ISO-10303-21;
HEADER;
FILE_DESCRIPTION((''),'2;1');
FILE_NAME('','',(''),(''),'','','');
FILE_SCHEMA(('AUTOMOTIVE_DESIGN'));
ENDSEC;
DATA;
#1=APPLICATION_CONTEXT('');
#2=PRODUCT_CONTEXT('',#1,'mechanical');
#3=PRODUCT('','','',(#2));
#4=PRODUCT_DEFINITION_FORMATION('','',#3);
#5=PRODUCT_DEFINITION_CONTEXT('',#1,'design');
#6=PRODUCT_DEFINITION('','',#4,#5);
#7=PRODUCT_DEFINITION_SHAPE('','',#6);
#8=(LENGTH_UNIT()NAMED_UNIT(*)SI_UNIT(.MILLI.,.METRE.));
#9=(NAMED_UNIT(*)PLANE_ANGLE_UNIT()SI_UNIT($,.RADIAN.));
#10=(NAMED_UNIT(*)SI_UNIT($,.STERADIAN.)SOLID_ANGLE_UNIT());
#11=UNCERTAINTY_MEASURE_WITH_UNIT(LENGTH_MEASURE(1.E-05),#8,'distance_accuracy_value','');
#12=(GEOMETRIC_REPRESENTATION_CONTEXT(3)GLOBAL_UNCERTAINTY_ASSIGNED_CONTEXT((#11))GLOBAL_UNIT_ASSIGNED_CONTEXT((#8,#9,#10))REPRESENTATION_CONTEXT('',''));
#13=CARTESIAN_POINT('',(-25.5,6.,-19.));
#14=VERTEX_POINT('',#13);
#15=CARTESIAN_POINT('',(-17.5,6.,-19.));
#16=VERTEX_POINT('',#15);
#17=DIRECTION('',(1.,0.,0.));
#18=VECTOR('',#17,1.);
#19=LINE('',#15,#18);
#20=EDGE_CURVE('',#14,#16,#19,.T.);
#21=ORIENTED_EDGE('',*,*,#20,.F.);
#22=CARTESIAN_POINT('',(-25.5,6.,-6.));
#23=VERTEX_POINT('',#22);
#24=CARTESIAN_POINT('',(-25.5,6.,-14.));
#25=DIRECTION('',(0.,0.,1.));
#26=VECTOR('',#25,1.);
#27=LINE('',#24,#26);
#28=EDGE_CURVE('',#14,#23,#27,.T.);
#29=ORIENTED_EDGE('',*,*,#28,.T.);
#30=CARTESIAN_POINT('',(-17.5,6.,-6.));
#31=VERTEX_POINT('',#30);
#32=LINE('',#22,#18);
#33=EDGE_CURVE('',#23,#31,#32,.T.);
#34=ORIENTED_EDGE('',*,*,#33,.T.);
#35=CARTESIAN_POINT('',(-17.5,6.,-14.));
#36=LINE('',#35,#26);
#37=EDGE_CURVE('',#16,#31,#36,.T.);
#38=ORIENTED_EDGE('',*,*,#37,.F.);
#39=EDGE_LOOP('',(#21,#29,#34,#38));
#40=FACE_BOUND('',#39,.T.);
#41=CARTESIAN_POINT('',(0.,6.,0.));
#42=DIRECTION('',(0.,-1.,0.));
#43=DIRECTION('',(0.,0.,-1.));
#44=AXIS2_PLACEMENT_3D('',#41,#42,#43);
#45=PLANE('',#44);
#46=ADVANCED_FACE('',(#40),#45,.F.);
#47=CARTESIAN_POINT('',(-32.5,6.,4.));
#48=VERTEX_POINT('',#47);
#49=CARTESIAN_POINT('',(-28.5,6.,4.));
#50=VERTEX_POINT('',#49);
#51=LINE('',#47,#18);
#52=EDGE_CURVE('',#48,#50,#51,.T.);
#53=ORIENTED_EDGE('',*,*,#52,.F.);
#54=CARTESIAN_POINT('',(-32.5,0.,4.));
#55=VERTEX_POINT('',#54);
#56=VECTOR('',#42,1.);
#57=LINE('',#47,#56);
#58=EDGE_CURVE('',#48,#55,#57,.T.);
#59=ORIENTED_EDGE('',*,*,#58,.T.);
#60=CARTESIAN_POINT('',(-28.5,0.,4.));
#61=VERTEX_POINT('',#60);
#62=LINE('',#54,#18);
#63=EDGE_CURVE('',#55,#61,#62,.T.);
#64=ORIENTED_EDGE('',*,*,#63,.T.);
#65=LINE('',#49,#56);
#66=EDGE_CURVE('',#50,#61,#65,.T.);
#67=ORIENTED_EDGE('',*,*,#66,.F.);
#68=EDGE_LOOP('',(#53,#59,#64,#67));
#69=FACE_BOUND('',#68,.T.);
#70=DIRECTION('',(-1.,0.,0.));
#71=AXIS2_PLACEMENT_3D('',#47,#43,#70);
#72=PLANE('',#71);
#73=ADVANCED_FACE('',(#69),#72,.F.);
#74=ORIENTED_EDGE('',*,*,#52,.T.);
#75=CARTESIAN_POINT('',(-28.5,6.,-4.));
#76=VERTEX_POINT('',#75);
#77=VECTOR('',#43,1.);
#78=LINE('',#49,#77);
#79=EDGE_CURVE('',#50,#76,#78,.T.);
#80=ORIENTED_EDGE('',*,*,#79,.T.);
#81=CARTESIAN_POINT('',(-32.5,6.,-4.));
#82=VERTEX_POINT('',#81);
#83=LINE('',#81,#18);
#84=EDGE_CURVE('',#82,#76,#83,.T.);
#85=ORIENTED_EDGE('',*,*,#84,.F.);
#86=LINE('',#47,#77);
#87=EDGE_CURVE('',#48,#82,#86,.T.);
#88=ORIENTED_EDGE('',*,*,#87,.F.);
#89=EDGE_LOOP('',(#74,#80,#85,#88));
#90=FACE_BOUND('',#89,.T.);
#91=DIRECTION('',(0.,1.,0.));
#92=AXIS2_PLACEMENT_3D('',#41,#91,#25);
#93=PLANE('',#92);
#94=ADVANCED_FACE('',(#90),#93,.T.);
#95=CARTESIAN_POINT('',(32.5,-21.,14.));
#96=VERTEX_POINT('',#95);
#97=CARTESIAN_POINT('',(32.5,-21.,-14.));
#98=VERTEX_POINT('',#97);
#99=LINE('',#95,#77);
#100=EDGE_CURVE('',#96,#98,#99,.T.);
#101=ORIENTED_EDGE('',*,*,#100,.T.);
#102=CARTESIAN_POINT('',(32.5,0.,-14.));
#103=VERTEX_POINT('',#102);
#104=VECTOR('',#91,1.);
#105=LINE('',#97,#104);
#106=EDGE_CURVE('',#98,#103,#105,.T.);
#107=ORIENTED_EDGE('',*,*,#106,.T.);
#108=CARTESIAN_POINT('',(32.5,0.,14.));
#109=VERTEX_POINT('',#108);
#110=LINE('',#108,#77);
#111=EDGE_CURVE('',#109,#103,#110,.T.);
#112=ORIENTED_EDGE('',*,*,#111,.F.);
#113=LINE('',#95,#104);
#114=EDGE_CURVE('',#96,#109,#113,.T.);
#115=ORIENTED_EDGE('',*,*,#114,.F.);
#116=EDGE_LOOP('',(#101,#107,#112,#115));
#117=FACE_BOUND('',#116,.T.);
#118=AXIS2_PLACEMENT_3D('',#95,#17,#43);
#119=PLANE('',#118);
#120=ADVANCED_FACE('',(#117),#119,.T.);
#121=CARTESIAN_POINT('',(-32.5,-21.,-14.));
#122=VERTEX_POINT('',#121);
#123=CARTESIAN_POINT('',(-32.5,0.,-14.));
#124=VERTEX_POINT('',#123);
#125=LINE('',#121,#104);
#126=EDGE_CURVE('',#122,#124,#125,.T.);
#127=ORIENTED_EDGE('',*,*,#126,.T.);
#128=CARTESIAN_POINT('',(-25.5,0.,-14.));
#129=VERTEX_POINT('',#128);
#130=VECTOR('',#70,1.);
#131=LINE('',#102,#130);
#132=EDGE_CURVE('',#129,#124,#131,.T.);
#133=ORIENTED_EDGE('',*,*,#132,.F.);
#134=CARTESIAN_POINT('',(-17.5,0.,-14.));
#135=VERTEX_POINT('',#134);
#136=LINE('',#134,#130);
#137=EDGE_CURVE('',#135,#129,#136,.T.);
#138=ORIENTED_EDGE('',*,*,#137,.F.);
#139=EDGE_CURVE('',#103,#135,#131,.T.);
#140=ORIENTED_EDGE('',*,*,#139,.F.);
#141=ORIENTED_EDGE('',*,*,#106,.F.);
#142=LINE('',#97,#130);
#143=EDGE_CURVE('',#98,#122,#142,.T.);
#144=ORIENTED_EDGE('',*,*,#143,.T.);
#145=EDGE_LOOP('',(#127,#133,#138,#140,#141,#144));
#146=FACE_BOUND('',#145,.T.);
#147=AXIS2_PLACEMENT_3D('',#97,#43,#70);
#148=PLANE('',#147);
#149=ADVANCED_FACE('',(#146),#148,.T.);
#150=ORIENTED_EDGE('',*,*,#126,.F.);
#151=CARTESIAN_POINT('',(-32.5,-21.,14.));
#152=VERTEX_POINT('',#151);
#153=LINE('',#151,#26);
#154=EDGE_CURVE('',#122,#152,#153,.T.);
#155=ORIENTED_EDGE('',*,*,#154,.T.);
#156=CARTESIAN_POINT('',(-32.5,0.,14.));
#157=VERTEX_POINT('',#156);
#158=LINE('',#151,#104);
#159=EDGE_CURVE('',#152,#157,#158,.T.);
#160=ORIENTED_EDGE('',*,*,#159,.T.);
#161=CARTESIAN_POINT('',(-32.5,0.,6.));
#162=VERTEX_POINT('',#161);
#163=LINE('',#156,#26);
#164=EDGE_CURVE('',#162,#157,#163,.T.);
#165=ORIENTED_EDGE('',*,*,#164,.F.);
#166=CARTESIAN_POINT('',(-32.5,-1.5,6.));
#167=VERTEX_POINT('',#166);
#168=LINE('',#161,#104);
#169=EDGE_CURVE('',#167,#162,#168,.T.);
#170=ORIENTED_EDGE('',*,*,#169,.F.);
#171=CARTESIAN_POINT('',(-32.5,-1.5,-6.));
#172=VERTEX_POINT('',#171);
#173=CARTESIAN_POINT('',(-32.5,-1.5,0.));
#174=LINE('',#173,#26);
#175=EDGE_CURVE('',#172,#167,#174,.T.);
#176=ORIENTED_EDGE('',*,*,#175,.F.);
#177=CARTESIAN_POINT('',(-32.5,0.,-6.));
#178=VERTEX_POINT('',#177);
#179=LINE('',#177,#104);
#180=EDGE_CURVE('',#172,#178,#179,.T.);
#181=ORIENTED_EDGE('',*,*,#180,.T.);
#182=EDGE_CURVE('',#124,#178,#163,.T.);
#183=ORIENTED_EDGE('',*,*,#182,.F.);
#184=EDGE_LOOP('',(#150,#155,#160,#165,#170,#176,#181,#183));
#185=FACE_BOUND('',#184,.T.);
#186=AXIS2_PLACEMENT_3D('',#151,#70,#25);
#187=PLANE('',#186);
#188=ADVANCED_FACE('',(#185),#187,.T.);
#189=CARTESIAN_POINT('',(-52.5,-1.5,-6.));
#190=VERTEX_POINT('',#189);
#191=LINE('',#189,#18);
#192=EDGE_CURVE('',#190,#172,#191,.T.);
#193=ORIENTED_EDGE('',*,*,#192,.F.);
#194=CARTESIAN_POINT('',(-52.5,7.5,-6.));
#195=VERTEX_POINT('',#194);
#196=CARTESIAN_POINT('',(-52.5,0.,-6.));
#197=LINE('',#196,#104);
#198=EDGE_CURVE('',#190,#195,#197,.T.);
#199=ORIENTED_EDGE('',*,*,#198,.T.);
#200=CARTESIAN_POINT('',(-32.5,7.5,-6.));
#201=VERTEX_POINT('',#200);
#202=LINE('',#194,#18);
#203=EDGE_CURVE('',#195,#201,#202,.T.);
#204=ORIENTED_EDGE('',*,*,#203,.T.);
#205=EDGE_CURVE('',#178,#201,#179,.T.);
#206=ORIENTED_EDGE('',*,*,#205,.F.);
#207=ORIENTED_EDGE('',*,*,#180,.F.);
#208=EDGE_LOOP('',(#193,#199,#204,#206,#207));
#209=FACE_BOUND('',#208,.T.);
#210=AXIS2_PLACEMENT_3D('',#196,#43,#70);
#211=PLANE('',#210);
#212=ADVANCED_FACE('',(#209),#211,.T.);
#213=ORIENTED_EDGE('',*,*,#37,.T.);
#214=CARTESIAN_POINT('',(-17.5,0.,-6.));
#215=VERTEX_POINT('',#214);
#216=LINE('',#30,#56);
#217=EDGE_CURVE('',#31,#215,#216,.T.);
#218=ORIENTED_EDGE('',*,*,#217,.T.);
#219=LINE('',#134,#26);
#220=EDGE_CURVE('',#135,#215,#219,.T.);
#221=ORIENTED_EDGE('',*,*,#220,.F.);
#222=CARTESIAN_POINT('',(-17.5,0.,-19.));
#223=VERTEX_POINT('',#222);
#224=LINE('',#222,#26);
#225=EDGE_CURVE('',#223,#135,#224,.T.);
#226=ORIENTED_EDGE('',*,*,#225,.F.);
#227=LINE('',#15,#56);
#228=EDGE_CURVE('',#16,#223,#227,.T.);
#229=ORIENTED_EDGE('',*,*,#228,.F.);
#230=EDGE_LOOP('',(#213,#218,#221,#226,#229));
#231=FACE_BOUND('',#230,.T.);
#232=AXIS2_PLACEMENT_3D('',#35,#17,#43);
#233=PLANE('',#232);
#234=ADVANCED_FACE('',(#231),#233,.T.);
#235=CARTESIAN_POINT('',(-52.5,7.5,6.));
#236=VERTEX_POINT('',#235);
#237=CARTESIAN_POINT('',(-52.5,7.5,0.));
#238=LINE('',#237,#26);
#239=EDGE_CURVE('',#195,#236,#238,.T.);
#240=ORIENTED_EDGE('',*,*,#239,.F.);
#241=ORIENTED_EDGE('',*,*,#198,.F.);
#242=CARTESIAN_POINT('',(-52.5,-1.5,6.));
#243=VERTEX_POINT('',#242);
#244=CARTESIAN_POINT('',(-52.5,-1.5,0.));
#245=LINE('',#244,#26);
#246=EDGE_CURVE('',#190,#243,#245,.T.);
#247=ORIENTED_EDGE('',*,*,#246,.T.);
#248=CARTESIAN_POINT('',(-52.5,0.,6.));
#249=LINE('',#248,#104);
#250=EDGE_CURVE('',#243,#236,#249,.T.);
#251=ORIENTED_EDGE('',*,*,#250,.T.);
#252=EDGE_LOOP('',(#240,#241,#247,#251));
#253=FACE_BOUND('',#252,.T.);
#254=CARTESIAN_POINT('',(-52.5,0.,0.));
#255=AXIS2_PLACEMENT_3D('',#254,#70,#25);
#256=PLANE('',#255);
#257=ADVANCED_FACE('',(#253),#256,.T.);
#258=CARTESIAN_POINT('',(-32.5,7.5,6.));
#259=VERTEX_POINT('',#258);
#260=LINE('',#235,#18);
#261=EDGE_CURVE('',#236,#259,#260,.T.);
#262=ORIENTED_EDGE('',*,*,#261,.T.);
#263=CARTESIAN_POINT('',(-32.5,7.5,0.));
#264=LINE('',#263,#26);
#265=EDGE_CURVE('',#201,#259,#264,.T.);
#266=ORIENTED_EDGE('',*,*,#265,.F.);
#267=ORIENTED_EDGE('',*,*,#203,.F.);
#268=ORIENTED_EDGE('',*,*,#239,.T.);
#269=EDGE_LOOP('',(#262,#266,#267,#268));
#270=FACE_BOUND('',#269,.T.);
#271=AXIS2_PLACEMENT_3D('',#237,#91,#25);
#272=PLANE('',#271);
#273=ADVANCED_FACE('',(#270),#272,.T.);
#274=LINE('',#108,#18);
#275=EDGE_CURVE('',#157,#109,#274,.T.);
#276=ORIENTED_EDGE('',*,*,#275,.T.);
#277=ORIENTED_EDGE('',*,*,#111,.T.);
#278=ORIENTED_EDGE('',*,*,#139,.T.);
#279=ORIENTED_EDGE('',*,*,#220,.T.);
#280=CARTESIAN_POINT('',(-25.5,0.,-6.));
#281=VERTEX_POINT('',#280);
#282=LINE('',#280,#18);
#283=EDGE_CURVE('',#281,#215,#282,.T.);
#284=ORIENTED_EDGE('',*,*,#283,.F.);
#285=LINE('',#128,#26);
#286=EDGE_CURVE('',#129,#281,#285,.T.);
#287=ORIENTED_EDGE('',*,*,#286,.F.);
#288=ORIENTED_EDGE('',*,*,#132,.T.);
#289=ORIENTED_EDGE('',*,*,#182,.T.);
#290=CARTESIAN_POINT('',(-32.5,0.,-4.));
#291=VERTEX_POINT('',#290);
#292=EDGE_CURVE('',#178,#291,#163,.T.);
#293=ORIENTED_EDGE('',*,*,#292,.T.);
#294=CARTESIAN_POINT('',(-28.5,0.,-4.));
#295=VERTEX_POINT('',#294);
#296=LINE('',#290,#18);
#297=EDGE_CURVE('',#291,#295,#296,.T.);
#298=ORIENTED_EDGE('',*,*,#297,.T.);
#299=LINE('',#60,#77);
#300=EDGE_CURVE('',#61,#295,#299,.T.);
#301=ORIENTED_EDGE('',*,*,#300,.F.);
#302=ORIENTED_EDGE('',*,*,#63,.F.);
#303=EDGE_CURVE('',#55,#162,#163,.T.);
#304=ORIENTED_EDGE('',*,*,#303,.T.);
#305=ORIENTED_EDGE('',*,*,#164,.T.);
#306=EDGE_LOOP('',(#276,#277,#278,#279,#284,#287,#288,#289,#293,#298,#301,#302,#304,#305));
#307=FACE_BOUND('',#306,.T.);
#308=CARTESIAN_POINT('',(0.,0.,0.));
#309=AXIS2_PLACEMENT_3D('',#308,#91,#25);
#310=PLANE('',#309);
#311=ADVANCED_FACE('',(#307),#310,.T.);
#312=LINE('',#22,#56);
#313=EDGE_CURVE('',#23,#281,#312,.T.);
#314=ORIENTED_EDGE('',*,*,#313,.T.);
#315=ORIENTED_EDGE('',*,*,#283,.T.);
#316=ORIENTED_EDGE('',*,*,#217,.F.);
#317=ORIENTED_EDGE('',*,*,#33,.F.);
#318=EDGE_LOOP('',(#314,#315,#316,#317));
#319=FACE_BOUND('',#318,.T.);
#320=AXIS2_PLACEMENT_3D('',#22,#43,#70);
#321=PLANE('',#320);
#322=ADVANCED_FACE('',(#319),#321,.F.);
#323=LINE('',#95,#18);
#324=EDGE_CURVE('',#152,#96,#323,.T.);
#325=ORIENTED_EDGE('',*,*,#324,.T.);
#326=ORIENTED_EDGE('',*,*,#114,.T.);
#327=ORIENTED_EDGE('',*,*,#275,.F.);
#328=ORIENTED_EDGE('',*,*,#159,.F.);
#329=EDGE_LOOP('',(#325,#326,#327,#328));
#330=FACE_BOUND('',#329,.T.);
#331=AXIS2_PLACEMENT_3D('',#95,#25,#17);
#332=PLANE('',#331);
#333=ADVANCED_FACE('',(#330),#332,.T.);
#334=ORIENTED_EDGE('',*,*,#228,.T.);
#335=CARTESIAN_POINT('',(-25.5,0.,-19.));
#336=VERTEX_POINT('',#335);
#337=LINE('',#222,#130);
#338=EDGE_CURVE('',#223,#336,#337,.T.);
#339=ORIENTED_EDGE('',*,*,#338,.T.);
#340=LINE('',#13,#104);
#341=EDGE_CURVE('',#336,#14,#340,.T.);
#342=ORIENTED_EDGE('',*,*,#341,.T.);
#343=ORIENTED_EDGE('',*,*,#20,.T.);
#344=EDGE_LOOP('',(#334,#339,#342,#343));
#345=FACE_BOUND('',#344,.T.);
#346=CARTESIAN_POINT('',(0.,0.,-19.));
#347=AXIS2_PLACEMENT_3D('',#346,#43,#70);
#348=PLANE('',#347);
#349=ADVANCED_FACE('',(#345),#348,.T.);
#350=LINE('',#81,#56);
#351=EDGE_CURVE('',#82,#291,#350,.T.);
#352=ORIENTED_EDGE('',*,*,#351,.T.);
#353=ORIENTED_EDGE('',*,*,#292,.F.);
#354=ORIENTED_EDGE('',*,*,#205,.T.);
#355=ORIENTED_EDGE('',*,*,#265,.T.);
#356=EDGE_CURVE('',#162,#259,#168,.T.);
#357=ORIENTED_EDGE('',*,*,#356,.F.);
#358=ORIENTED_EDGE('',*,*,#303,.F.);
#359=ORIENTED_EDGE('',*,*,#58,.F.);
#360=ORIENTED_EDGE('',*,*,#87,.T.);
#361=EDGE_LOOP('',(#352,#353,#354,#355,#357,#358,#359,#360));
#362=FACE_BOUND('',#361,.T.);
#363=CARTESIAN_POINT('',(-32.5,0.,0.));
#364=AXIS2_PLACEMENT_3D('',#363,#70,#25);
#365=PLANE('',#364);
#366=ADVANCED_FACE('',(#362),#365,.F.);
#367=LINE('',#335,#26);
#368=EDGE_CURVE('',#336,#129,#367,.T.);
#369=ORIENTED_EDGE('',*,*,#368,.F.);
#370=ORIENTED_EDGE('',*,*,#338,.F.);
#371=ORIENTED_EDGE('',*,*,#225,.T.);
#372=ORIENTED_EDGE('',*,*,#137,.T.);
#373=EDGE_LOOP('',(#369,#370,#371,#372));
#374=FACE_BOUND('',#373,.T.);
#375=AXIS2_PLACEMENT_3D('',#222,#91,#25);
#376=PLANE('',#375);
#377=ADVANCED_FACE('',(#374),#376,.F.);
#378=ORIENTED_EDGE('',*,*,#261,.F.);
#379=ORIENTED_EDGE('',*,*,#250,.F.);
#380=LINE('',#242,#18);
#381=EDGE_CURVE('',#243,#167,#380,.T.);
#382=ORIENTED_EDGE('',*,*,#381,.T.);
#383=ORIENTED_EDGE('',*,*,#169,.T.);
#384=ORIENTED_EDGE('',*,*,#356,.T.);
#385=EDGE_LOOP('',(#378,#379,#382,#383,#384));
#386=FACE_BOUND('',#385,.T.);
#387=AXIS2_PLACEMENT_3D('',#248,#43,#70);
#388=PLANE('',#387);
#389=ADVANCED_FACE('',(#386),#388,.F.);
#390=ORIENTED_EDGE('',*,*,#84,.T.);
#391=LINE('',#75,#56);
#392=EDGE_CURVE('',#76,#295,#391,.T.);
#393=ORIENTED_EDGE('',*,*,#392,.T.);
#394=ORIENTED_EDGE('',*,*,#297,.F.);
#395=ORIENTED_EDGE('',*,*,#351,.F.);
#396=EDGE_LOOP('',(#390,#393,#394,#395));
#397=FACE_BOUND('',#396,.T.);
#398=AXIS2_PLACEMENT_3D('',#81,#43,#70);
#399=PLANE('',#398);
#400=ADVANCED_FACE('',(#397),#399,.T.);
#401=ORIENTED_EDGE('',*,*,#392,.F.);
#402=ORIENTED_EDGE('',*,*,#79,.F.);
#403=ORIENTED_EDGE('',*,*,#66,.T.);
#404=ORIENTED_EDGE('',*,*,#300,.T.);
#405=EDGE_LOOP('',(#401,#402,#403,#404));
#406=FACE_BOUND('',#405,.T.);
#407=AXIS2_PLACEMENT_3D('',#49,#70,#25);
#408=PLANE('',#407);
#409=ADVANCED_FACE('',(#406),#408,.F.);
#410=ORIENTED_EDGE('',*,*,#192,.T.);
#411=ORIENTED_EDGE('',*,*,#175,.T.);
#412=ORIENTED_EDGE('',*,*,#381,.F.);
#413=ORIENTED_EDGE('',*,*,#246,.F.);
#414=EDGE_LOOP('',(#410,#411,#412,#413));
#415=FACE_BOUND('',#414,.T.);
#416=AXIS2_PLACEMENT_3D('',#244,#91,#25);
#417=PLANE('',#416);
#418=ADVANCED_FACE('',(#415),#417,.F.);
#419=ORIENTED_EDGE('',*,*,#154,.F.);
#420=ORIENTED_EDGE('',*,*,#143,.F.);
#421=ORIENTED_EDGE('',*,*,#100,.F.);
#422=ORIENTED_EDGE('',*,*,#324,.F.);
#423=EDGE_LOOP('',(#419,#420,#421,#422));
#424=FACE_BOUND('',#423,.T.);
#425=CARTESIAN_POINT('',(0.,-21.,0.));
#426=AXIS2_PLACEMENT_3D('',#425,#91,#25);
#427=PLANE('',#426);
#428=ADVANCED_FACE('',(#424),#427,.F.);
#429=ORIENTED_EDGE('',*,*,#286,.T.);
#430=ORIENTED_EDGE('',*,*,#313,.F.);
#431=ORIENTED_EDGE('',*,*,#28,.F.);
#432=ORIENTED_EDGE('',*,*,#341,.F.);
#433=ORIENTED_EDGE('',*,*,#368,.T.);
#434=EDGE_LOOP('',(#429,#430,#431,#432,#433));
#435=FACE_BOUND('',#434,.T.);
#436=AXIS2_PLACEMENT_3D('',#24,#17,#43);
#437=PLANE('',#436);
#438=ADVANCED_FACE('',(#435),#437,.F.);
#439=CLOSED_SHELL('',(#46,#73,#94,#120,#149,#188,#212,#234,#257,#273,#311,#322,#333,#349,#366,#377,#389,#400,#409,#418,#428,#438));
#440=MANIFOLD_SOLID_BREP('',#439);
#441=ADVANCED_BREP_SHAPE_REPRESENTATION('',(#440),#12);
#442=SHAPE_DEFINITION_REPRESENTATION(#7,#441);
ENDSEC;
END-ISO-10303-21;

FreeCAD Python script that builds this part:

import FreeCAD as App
import Part
import Sketcher

V = App.Vector
Q = App.Units.Quantity


def add_polygon(sketch, points):
    """Adds a closed chain of lines whose ends are joined by coincident constraints."""
    first, n = sketch.GeometryCount, len(points)
    for a, b in zip(points, points[1:] + points[:1]):
        sketch.addGeometry(Part.LineSegment(App.Vector(*a, 0), App.Vector(*b, 0)), False)
    for i in range(n):
        sketch.addConstraint(Sketcher.Constraint("Coincident", first + i, 2, first + (i + 1) % n, 1))

doc = App.newDocument("Part")
body = doc.addObject("PartDesign::Body", "Body")

sketch1 = body.newObject("Sketcher::SketchObject", "Sketch")
sketch1.AttachmentSupport = (doc.getObject("XZ_Plane"), [""])
sketch1.MapMode = "FlatFace"
add_polygon(sketch1, [(-32.5, -14), (-32.5, 14), (32.5, 14), (32.5, -14)])
sketch1.addConstraint([
    Sketcher.Constraint("Vertical", 0),
    Sketcher.Constraint("Horizontal", 1),
    Sketcher.Constraint("Vertical", 2),
    Sketcher.Constraint("Horizontal", 3),
    Sketcher.Constraint("Symmetric", 0, 2, 2, 2, -1, 1),
    Sketcher.Constraint("DistanceX", 1, 1, 1, 2, Q("65 mm")),
    Sketcher.Constraint("DistanceY", 0, 1, 0, 2, Q("28 mm")),
])
pad1 = body.newObject("PartDesign::Pad", "Pad")
pad1.Profile = sketch1
pad1.Length = 21

sketch2 = body.newObject("Sketcher::SketchObject", "Sketch001")
sketch2.AttachmentSupport = (doc.getObject("XZ_Plane"), [""])
sketch2.MapMode = "FlatFace"
add_polygon(sketch2, [(-32.5, -4), (-32.5, 4), (-28.5, 4), (-28.5, -4)])
sketch2.addConstraint([
    Sketcher.Constraint("Vertical", 0),
    Sketcher.Constraint("Horizontal", 1),
    Sketcher.Constraint("Vertical", 2),
    Sketcher.Constraint("Horizontal", 3),
    Sketcher.Constraint("DistanceX", 1, 1, 1, 2, Q("4 mm")),
    Sketcher.Constraint("DistanceY", 0, 1, 0, 2, Q("8 mm")),
    Sketcher.Constraint("DistanceY", -1, 1, 0, 2, Q("4 mm")),
    Sketcher.Constraint("DistanceX", 0, 2, -1, 1, Q("32.5 mm")),
])
pad2 = body.newObject("PartDesign::Pad", "Pad001")
pad2.Profile = sketch2
pad2.Length = 6
pad2.Reversed = True

sketch3 = body.newObject("Sketcher::SketchObject", "Sketch002")
sketch3.AttachmentSupport = (doc.getObject("XZ_Plane"), [""])
sketch3.MapMode = "FlatFace"
add_polygon(sketch3, [(-25.5, -14), (-25.5, -6), (-17.5, -6), (-17.5, -14)])
sketch3.addConstraint([
    Sketcher.Constraint("Vertical", 0),
    Sketcher.Constraint("Horizontal", 1),
    Sketcher.Constraint("Vertical", 2),
    Sketcher.Constraint("Horizontal", 3),
    Sketcher.Constraint("Equal", 3, 0),
    Sketcher.Constraint("DistanceX", 1, 1, 1, 2, Q("8 mm")),
    Sketcher.Constraint("DistanceY", 0, 2, -1, 1, Q("6 mm")),
    Sketcher.Constraint("DistanceX", 0, 2, -1, 1, Q("25.5 mm")),
])
pad3 = body.newObject("PartDesign::Pad", "Pad002")
pad3.Profile = sketch3
pad3.Length = 6
pad3.Reversed = True

sketch4 = body.newObject("Sketcher::SketchObject", "Sketch003")
sketch4.AttachmentSupport = (doc.getObject("YZ_Plane"), [""])
sketch4.MapMode = "FlatFace"
sketch4.AttachmentOffset = App.Placement(V(0, 0, -32.5), App.Rotation())
add_polygon(sketch4, [(7.5, 6), (7.5, -6), (-1.5, -6), (-1.5, 6)])
sketch4.addConstraint([
    Sketcher.Constraint("Vertical", 0),
    Sketcher.Constraint("Horizontal", 1),
    Sketcher.Constraint("Vertical", 2),
    Sketcher.Constraint("Horizontal", 3),
    Sketcher.Constraint("DistanceX", 1, 2, 1, 1, Q("9 mm")),
    Sketcher.Constraint("DistanceY", 0, 2, 0, 1, Q("12 mm")),
    Sketcher.Constraint("DistanceY", 0, 2, -1, 1, Q("6 mm")),
    Sketcher.Constraint("DistanceX", -1, 1, 0, 2, Q("7.5 mm")),
])
pad4 = body.newObject("PartDesign::Pad", "Pad003")
pad4.Profile = sketch4
pad4.Length = 20
pad4.Reversed = True

sketch5 = body.newObject("Sketcher::SketchObject", "Sketch004")
sketch5.AttachmentSupport = (doc.getObject("XY_Plane"), [""])
sketch5.MapMode = "FlatFace"
sketch5.AttachmentOffset = App.Placement(V(0, 0, -14), App.Rotation())
add_polygon(sketch5, [(-17.5, 6), (-17.5, 0), (-25.5, 0), (-25.5, 6)])
sketch5.addConstraint([
    Sketcher.Constraint("Vertical", 0),
    Sketcher.Constraint("Horizontal", 1),
    Sketcher.Constraint("Vertical", 2),
    Sketcher.Constraint("Horizontal", 3),
    Sketcher.Constraint("PointOnObject", 0, 2, -1),
    Sketcher.Constraint("DistanceX", 1, 2, 1, 1, Q("8 mm")),
    Sketcher.Constraint("DistanceY", 0, 2, 0, 1, Q("6 mm")),
    Sketcher.Constraint("DistanceX", 0, 2, -1, 1, Q("17.5 mm")),
])
pad5 = body.newObject("PartDesign::Pad", "Pad004")
pad5.Profile = sketch5
pad5.Length = 5
pad5.Reversed = True

doc.recompute()
